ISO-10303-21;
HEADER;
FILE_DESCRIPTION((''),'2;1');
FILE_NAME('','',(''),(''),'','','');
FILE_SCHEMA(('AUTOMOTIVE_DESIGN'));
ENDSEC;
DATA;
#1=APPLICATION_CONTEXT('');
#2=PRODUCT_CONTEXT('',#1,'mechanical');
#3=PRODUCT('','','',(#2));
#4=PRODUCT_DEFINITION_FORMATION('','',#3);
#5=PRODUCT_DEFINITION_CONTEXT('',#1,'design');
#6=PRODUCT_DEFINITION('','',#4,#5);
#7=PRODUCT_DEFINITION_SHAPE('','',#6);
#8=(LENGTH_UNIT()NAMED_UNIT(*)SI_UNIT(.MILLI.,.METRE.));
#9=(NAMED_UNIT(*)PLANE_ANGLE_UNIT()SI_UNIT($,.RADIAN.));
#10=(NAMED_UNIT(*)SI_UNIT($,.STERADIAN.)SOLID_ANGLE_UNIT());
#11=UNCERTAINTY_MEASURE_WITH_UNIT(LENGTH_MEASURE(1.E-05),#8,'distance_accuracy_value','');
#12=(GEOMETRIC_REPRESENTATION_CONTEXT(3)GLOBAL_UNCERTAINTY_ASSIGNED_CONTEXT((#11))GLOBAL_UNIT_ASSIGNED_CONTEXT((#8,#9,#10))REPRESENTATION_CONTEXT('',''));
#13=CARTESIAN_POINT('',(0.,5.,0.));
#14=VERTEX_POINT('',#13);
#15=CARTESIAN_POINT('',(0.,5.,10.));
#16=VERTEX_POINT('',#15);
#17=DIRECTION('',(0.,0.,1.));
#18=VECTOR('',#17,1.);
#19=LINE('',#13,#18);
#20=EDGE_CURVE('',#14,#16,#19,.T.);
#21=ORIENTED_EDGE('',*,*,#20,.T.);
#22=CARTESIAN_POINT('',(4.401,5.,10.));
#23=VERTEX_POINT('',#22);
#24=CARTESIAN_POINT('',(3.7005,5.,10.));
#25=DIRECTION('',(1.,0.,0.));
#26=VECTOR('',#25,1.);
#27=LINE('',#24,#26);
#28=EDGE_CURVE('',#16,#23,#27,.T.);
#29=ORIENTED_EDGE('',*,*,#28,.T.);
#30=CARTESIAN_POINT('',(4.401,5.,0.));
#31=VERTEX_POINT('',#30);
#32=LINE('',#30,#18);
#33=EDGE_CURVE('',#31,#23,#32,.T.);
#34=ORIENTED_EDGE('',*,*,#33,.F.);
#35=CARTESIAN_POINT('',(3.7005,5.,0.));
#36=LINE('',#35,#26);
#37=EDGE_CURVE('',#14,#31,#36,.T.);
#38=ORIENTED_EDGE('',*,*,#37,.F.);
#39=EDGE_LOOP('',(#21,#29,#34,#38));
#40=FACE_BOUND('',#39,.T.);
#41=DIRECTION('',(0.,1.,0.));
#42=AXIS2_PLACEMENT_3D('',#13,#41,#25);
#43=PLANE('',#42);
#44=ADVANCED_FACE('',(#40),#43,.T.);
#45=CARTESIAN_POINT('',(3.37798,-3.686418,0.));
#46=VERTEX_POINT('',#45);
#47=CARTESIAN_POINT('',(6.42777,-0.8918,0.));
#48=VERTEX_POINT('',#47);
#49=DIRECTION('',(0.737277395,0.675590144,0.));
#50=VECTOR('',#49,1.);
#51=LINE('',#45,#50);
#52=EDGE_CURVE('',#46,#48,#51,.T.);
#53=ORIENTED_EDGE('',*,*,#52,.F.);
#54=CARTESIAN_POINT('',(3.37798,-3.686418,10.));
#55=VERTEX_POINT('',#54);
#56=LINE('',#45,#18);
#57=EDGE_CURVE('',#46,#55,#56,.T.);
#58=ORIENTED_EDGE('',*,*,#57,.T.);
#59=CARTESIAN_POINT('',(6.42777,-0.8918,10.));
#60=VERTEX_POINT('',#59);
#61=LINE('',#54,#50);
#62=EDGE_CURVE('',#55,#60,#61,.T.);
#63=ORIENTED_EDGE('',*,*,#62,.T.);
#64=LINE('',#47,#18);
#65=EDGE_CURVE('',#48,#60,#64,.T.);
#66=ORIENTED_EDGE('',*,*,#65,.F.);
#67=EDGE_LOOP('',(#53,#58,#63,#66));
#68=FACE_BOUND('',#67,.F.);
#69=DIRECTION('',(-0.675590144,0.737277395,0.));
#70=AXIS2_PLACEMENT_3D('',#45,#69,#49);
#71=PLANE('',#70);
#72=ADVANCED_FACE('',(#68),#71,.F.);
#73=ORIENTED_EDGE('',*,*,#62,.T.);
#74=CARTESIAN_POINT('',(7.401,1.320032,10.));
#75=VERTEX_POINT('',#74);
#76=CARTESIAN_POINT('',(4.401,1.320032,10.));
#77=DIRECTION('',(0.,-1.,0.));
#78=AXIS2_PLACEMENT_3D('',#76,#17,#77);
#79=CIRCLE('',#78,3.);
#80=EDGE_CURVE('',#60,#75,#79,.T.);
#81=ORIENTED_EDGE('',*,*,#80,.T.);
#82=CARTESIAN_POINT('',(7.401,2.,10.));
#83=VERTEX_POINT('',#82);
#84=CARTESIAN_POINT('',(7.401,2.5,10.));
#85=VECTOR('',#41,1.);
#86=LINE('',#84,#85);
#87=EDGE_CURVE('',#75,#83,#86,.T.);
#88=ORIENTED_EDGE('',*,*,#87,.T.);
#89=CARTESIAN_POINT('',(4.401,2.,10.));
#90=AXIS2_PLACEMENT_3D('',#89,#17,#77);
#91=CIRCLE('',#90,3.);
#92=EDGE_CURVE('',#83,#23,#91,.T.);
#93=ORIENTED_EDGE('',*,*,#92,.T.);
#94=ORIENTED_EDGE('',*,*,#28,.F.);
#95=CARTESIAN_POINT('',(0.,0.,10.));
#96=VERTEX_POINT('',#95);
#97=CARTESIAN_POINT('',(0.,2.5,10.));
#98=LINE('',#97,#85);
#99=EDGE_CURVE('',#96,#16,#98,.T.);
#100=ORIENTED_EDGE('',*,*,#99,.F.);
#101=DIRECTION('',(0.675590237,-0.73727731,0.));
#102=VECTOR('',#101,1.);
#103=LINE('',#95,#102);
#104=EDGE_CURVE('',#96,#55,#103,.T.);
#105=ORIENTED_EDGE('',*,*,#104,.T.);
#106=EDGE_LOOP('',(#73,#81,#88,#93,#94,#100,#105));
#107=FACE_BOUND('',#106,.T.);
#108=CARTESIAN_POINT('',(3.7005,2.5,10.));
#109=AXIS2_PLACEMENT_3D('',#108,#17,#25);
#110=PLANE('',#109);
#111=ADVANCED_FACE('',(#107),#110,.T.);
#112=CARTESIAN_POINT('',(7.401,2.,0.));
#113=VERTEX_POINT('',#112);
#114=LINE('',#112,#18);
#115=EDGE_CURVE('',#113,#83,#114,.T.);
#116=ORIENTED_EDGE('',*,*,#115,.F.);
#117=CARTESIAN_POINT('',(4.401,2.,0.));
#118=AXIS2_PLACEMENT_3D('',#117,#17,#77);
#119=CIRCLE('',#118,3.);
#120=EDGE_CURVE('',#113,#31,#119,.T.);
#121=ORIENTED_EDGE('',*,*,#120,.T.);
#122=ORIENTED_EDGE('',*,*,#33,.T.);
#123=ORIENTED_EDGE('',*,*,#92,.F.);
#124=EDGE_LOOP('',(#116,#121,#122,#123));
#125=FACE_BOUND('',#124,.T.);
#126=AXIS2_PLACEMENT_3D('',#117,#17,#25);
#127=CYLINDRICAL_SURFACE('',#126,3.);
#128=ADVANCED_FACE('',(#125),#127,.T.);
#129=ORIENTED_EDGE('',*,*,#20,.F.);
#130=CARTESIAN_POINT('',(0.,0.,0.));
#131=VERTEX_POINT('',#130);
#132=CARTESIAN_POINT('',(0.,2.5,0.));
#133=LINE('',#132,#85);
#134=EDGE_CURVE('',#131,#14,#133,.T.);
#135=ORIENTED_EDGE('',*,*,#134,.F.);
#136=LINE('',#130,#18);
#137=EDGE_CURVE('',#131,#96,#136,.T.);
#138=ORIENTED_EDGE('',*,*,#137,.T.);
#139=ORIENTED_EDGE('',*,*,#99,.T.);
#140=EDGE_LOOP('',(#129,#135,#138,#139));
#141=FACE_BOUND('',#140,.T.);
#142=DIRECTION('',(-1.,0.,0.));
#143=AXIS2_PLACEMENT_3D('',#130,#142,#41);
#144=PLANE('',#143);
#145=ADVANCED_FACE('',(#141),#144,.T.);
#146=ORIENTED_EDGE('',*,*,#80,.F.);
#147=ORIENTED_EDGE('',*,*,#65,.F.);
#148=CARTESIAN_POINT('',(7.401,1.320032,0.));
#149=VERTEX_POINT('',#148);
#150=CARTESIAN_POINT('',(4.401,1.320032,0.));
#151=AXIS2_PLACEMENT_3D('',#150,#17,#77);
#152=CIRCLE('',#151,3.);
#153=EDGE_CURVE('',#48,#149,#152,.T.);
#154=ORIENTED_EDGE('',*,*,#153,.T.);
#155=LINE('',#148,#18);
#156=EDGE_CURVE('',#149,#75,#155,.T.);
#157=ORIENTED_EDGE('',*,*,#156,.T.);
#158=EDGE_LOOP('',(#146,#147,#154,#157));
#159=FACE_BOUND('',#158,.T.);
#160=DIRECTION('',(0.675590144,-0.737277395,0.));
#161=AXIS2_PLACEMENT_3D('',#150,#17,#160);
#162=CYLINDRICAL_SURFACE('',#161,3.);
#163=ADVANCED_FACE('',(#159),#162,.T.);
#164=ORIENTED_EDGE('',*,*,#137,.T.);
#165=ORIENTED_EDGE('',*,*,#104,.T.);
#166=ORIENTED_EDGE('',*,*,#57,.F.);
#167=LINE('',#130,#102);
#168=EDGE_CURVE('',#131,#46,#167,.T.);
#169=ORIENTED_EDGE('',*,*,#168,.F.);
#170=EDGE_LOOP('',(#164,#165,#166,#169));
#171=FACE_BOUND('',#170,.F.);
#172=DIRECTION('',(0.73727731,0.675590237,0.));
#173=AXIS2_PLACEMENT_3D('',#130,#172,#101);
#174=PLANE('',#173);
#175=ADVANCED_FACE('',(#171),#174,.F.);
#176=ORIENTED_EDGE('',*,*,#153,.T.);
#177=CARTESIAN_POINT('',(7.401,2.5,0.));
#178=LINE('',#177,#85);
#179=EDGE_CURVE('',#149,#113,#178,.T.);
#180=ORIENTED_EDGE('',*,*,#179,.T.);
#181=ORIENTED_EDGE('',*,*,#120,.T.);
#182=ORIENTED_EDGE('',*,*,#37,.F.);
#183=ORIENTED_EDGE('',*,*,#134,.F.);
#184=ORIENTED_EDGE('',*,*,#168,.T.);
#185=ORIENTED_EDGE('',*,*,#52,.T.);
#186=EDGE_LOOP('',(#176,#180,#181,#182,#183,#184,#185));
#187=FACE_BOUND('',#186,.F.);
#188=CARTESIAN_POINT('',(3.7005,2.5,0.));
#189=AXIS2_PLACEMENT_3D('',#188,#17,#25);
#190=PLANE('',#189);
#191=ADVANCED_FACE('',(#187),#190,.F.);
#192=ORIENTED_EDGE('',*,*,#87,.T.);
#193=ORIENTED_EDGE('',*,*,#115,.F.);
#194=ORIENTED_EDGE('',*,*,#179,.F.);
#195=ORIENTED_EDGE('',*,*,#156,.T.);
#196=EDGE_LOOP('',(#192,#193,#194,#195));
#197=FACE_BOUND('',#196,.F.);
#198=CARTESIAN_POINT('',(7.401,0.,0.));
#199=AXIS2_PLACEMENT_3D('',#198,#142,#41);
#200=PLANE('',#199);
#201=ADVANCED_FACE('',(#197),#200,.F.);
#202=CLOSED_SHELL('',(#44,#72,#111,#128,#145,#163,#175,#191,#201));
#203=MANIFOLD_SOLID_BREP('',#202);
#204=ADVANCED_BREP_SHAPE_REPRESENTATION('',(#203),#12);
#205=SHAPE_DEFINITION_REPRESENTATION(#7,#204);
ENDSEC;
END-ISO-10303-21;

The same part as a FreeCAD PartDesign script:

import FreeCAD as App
import Part
import Sketcher
from FreeCAD import Vector
Q = App.Units.Quantity


def edges_at(feature, points):
    """Names of the edges that pass closest to the given points."""
    edges = feature.Shape.Edges
    near = lambda p: min(range(len(edges)), key=lambda i: edges[i].distToShape(Part.Vertex(*p))[0])
    return sorted({f"Edge{near(p) + 1}" for p in points})

doc = App.newDocument("Part")
body = doc.addObject("PartDesign::Body", "Body")

sketch1 = body.newObject("Sketcher::SketchObject", "Sketch")
sketch1.AttachmentSupport = (doc.getObject("XY_Plane"), [""])
sketch1.MapMode = "FlatFace"
sketch1.addGeometry([
    Part.LineSegment(Vector(0, 5, 0), Vector(0, 0, 0)),
    Part.LineSegment(Vector(0, 0, 0), Vector(3.37798, -3.686418, 0)),
    Part.LineSegment(Vector(3.37798, -3.686418, 0), Vector(7.401, 0, 0)),
    Part.LineSegment(Vector(7.401, 0, 0), Vector(7.401, 5, 0)),
    Part.LineSegment(Vector(7.401, 5, 0), Vector(0, 5, 0)),
], False)
sketch1.addConstraint([
    Sketcher.Constraint("Coincident", 0, 2, 1, 1),
    Sketcher.Constraint("Coincident", 1, 2, 2, 1),
    Sketcher.Constraint("Coincident", 2, 2, 3, 1),
    Sketcher.Constraint("Coincident", 3, 2, 4, 1),
    Sketcher.Constraint("Coincident", 4, 2, 0, 1),
    Sketcher.Constraint("Vertical", 0),
    Sketcher.Constraint("Vertical", 3),
    Sketcher.Constraint("Horizontal", 4),
    Sketcher.Constraint("Coincident", 0, 2, -1, 1),
    Sketcher.Constraint("PointOnObject", 2, 2, -1),
    Sketcher.Constraint("Perpendicular", 1, 2),
    Sketcher.Constraint("DistanceY", 0, 2, 0, 1, Q("5 mm")),
    Sketcher.Constraint("Angle", 1, Q("-47.499998 deg")),
    Sketcher.Constraint("DistanceX", 4, 2, 4, 1, Q("7.401 mm")),
])
pad1 = body.newObject("PartDesign::Pad", "Pad")
pad1.Profile = sketch1
pad1.Length = 10
doc.recompute()

fillet = body.newObject("PartDesign::Fillet", "Fillet")
fillet.Base = (pad1, edges_at(pad1, [(7.401, 5, 5), (7.401, 0, 5)]))
fillet.Radius = 3

doc.recompute()
